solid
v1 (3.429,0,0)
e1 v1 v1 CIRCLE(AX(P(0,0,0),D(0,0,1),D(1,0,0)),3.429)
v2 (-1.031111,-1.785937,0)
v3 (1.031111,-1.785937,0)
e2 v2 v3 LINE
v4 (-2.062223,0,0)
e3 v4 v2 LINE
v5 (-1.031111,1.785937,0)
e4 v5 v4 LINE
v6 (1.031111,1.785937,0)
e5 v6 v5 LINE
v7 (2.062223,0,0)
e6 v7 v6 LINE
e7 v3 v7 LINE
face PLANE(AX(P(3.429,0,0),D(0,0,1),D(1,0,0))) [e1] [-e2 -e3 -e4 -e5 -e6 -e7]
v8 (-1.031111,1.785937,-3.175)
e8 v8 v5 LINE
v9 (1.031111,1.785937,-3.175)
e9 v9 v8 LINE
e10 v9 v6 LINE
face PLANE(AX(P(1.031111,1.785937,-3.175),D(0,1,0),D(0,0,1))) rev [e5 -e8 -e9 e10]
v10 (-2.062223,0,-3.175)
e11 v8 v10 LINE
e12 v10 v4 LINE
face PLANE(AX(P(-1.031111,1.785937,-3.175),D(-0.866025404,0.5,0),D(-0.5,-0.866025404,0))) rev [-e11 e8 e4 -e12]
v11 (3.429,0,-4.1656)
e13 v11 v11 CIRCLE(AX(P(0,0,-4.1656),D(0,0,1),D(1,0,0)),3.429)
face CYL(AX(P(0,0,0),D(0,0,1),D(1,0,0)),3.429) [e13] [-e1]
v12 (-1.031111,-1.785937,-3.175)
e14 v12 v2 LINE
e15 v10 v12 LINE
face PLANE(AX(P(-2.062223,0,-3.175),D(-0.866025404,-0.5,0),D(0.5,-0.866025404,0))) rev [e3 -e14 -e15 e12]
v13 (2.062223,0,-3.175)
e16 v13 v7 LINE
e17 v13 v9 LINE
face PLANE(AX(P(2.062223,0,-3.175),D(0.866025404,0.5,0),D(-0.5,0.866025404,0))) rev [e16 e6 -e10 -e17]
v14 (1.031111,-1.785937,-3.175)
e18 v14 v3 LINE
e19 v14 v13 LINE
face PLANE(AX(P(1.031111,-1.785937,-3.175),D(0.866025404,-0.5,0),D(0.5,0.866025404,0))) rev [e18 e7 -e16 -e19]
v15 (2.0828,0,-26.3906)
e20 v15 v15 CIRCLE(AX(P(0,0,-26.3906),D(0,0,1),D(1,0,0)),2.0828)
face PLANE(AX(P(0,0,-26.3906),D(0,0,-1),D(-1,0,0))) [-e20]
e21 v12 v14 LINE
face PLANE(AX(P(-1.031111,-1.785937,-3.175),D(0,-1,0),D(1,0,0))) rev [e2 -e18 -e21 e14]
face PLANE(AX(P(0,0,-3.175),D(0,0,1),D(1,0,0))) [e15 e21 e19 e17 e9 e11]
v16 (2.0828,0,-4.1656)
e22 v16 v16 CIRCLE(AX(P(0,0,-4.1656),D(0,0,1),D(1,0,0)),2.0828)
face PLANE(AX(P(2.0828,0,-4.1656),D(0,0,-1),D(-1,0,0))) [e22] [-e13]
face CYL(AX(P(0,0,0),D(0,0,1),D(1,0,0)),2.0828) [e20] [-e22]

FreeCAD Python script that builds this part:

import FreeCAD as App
import Part
import Sketcher

V = App.Vector
Q = App.Units.Quantity


def add_polygon(sketch, points):
    """Adds a closed chain of lines whose ends are joined by coincident constraints."""
    first, n = sketch.GeometryCount, len(points)
    for a, b in zip(points, points[1:] + points[:1]):
        sketch.addGeometry(Part.LineSegment(App.Vector(*a, 0), App.Vector(*b, 0)), False)
    for i in range(n):
        sketch.addConstraint(Sketcher.Constraint("Coincident", first + i, 2, first + (i + 1) % n, 1))

doc = App.newDocument("Part")
params = doc.addObject("Spreadsheet::Sheet", "Params")
for row, (alias, value) in enumerate([
    ("sketch1_width", "0.135 in"),
    ("sketch1_width2", "0.053 in"),
    ("sketch1_height", "1.039 in"),
    ("sketch1_height2", "0.164 in"),
    ("revolution_angle", "360 deg"),
    ("pocket1_length", "0.125 in"),
], start=1):
    params.set(f"A{row}", alias)
    params.set(f"B{row}", "=" + value)
    params.setAlias(f"B{row}", alias)

body = doc.addObject("PartDesign::Body", "Body")

sketch1 = body.newObject("Sketcher::SketchObject", "Sketch")
sketch1.AttachmentSupport = (doc.getObject("XZ_Plane"), [""])
sketch1.MapMode = "FlatFace"
add_polygon(sketch1, [(0, -26.3906), (0, 0), (3.429, 0), (3.429, -4.1656), (2.0828, -4.1656), (2.0828, -26.3906)])
sketch1.addConstraint(Sketcher.Constraint("Vertical", 0))
sketch1.addConstraint(Sketcher.Constraint("Horizontal", 1))
sketch1.addConstraint(Sketcher.Constraint("Vertical", 2))
sketch1.addConstraint(Sketcher.Constraint("Horizontal", 3))
sketch1.addConstraint(Sketcher.Constraint("Vertical", 4))
sketch1.addConstraint(Sketcher.Constraint("Horizontal", 5))
sketch1.addConstraint(Sketcher.Constraint("Coincident", 0, 2, -1, 1))
sketch1.addConstraint(Sketcher.Constraint("DistanceX", 1, 1, 1, 2, Q("0.135 in")))
sketch1.addConstraint(Sketcher.Constraint("DistanceX", 3, 2, 3, 1, Q("0.053 in")))
sketch1.addConstraint(Sketcher.Constraint("DistanceY", 0, 1, 0, 2, Q("1.039 in")))
sketch1.addConstraint(Sketcher.Constraint("DistanceY", 2, 2, 2, 1, Q("0.164 in")))
sketch1.setExpression("Constraints[13]", "Params.sketch1_width")
sketch1.setExpression("Constraints[14]", "Params.sketch1_width2")
sketch1.setExpression("Constraints[15]", "Params.sketch1_height")
sketch1.setExpression("Constraints[16]", "Params.sketch1_height2")
revolution = body.newObject("PartDesign::Revolution", "Revolution")
revolution.Profile = sketch1
revolution.ReferenceAxis = (sketch1, ["V_Axis"])
revolution.setExpression("Angle", "Params.revolution_angle")

sketch2 = body.newObject("Sketcher::SketchObject", "Sketch001")
sketch2.AttachmentSupport = (doc.getObject("XY_Plane"), [""])
sketch2.MapMode = "FlatFace"
add_polygon(sketch2, [(2.062223, 0), (1.031111, 1.785937), (-1.031111, 1.785937), (-2.062223, 0), (-1.031111, -1.785937), (1.031111, -1.785937)])
sketch2.addConstraint(Sketcher.Constraint("Horizontal", 1))
sketch2.addConstraint(Sketcher.Constraint("Horizontal", 4))
sketch2.addConstraint(Sketcher.Constraint("Symmetric", 0, 2, 3, 2, -1, 1))
sketch2.addConstraint(Sketcher.Constraint("Symmetric", 2, 2, 5, 2, -1, 1))
sketch2.addConstraint(Sketcher.Constraint("PointOnObject", 2, 2, -1))
sketch2.addConstraint(Sketcher.Constraint("Parallel", 2, 5))
sketch2.addConstraint(Sketcher.Constraint("Vertical", 1, 2, 3, 2))
sketch2.addConstraint(Sketcher.Constraint("Angle", 0, Q("120 deg")))
sketch2.addConstraint(Sketcher.Constraint("DistanceY", 3, 2, 1, 2, Q("0.140625 in")))
sketch2.addConstraint(Sketcher.Constraint("DistanceX", 1, 2, 1, 1, Q("2.062223 mm")))
pocket1 = body.newObject("PartDesign::Pocket", "Pocket")
pocket1.Profile = sketch2
pocket1.setExpression("Length", "Params.pocket1_length")

doc.recompute()
